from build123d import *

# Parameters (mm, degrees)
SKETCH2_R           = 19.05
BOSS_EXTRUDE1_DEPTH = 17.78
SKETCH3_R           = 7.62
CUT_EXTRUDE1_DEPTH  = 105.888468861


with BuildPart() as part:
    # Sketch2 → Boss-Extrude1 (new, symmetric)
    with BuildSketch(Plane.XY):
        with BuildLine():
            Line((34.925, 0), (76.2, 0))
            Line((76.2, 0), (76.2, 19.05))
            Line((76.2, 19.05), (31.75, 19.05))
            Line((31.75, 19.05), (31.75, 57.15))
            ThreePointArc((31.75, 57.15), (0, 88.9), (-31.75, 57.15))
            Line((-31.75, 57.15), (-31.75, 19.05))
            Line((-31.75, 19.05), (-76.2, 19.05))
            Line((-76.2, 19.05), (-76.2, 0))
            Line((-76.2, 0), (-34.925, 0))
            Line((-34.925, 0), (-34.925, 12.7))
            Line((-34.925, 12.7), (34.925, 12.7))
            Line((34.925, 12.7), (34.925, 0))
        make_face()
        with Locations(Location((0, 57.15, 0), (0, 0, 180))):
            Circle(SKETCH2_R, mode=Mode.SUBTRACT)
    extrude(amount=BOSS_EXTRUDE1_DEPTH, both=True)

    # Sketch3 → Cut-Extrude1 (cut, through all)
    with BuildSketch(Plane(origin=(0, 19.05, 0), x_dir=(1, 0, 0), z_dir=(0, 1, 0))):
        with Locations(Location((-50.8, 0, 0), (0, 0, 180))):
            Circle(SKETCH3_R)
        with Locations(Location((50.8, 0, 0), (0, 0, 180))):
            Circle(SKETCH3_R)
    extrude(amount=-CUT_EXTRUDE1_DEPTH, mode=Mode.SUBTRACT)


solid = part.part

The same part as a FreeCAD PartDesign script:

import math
import FreeCAD as App
import Part
import Sketcher
Q = App.Units.Quantity

doc = App.newDocument("Part")
body = doc.addObject("PartDesign::Body", "Body")

sketch1 = body.newObject("Sketcher::SketchObject", "Sketch")
sketch1.AttachmentSupport = (doc.getObject("XY_Plane"), [""])
sketch1.MapMode = "FlatFace"
sketch1.addGeometry(Part.LineSegment(App.Vector(34.925, 0, 0), App.Vector(76.2, 0, 0)), False)
sketch1.addGeometry(Part.LineSegment(App.Vector(76.2, 0, 0), App.Vector(76.2, 19.05, 0)), False)
sketch1.addGeometry(Part.LineSegment(App.Vector(76.2, 19.05, 0), App.Vector(31.75, 19.05, 0)), False)
sketch1.addGeometry(Part.LineSegment(App.Vector(31.75, 19.05, 0), App.Vector(31.75, 57.15, 0)), False)
sketch1.addGeometry(Part.ArcOfCircle(Part.Circle(App.Vector(0, 57.15, 0), App.Vector(0, 0, 1), 31.75), math.radians(0), math.radians(180)), False)
sketch1.addGeometry(Part.LineSegment(App.Vector(-31.75, 57.15, 0), App.Vector(-31.75, 19.05, 0)), False)
sketch1.addGeometry(Part.LineSegment(App.Vector(-31.75, 19.05, 0), App.Vector(-76.2, 19.05, 0)), False)
sketch1.addGeometry(Part.LineSegment(App.Vector(-76.2, 19.05, 0), App.Vector(-76.2, 0, 0)), False)
sketch1.addGeometry(Part.LineSegment(App.Vector(-76.2, 0, 0), App.Vector(-34.925, 0, 0)), False)
sketch1.addGeometry(Part.LineSegment(App.Vector(-34.925, 0, 0), App.Vector(-34.925, 12.7, 0)), False)
sketch1.addGeometry(Part.LineSegment(App.Vector(-34.925, 12.7, 0), App.Vector(34.925, 12.7, 0)), False)
sketch1.addGeometry(Part.LineSegment(App.Vector(34.925, 12.7, 0), App.Vector(34.925, 0, 0)), False)
sketch1.addGeometry(Part.Circle(App.Vector(0, 57.15, 0), App.Vector(0, 0, 1), 19.05), False)
sketch1.addConstraint(Sketcher.Constraint("Coincident", 0, 2, 1, 1))
sketch1.addConstraint(Sketcher.Constraint("Coincident", 1, 2, 2, 1))
sketch1.addConstraint(Sketcher.Constraint("Coincident", 2, 2, 3, 1))
sketch1.addConstraint(Sketcher.Constraint("Tangent", 3, 2, 4, 1))
sketch1.addConstraint(Sketcher.Constraint("Tangent", 4, 2, 5, 1))
sketch1.addConstraint(Sketcher.Constraint("Coincident", 5, 2, 6, 1))
sketch1.addConstraint(Sketcher.Constraint("Coincident", 6, 2, 7, 1))
sketch1.addConstraint(Sketcher.Constraint("Coincident", 7, 2, 8, 1))
sketch1.addConstraint(Sketcher.Constraint("Coincident", 8, 2, 9, 1))
sketch1.addConstraint(Sketcher.Constraint("Coincident", 9, 2, 10, 1))
sketch1.addConstraint(Sketcher.Constraint("Coincident", 10, 2, 11, 1))
sketch1.addConstraint(Sketcher.Constraint("Coincident", 11, 2, 0, 1))
sketch1.addConstraint(Sketcher.Constraint("Horizontal", 0))
sketch1.addConstraint(Sketcher.Constraint("Vertical", 1))
sketch1.addConstraint(Sketcher.Constraint("Horizontal", 2))
sketch1.addConstraint(Sketcher.Constraint("Vertical", 3))
sketch1.addConstraint(Sketcher.Constraint("Vertical", 5))
sketch1.addConstraint(Sketcher.Constraint("Horizontal", 6))
sketch1.addConstraint(Sketcher.Constraint("Vertical", 7))
sketch1.addConstraint(Sketcher.Constraint("Horizontal", 8))
sketch1.addConstraint(Sketcher.Constraint("Vertical", 9))
sketch1.addConstraint(Sketcher.Constraint("Horizontal", 10))
sketch1.addConstraint(Sketcher.Constraint("Vertical", 11))
sketch1.addConstraint(Sketcher.Constraint("Coincident", 12, 3, 4, 3))
sketch1.addConstraint(Sketcher.Constraint("Symmetric", 0, 2, 7, 2, -1, 1))
sketch1.addConstraint(Sketcher.Constraint("Symmetric", 2, 2, 5, 2, -2))
sketch1.addConstraint(Sketcher.Constraint("Symmetric", 8, 2, 11, 2, -2))
sketch1.addConstraint(Sketcher.Constraint("Diameter", 12, Q("1.5 in")))
sketch1.addConstraint(Sketcher.Constraint("Radius", 4, Q("1.25 in")))
sketch1.addConstraint(Sketcher.Constraint("DistanceY", 3, 1, 3, 2, Q("1.5 in")))
sketch1.addConstraint(Sketcher.Constraint("DistanceY", 9, 1, 9, 2, Q("0.5 in")))
sketch1.addConstraint(Sketcher.Constraint("DistanceX", -1, 1, 0, 2, Q("3 in")))
sketch1.addConstraint(Sketcher.Constraint("DistanceX", 10, 1, 10, 2, Q("2.75 in")))
sketch1.addConstraint(Sketcher.Constraint("DistanceY", 1, 1, 1, 2, Q("0.75 in")))
pad1 = body.newObject("PartDesign::Pad", "Pad")
pad1.Profile = sketch1
pad1.Length = Q("1.4 in")
pad1.Midplane = True

sketch2 = body.newObject("Sketcher::SketchObject", "Sketch001")
sketch2.AttachmentSupport = (doc.getObject("XZ_Plane"), [""])
sketch2.MapMode = "FlatFace"
sketch2.AttachmentOffset = App.Placement(App.Vector(0, 0, -0.75 * 25.4), App.Rotation())
sketch2.addGeometry(Part.Circle(App.Vector(-50.8, 0, 0), App.Vector(0, 0, 1), 7.62), False)
sketch2.addGeometry(Part.Circle(App.Vector(50.8, 0, 0), App.Vector(0, 0, 1), 7.62), False)
sketch2.addConstraint(Sketcher.Constraint("Equal", 0, 1))
sketch2.addConstraint(Sketcher.Constraint("Symmetric", 0, 3, 1, 3, -1, 1))
sketch2.addConstraint(Sketcher.Constraint("PointOnObject", 0, 3, -1))
sketch2.addConstraint(Sketcher.Constraint("Diameter", 0, Q("0.6 in")))
sketch2.addConstraint(Sketcher.Constraint("DistanceX", 0, 3, -1, 1, Q("2 in")))
pocket1 = body.newObject("PartDesign::Pocket", "Pocket")
pocket1.Profile = sketch2
pocket1.Type = "ThroughAll"
pocket1.Reversed = True

doc.recompute()
